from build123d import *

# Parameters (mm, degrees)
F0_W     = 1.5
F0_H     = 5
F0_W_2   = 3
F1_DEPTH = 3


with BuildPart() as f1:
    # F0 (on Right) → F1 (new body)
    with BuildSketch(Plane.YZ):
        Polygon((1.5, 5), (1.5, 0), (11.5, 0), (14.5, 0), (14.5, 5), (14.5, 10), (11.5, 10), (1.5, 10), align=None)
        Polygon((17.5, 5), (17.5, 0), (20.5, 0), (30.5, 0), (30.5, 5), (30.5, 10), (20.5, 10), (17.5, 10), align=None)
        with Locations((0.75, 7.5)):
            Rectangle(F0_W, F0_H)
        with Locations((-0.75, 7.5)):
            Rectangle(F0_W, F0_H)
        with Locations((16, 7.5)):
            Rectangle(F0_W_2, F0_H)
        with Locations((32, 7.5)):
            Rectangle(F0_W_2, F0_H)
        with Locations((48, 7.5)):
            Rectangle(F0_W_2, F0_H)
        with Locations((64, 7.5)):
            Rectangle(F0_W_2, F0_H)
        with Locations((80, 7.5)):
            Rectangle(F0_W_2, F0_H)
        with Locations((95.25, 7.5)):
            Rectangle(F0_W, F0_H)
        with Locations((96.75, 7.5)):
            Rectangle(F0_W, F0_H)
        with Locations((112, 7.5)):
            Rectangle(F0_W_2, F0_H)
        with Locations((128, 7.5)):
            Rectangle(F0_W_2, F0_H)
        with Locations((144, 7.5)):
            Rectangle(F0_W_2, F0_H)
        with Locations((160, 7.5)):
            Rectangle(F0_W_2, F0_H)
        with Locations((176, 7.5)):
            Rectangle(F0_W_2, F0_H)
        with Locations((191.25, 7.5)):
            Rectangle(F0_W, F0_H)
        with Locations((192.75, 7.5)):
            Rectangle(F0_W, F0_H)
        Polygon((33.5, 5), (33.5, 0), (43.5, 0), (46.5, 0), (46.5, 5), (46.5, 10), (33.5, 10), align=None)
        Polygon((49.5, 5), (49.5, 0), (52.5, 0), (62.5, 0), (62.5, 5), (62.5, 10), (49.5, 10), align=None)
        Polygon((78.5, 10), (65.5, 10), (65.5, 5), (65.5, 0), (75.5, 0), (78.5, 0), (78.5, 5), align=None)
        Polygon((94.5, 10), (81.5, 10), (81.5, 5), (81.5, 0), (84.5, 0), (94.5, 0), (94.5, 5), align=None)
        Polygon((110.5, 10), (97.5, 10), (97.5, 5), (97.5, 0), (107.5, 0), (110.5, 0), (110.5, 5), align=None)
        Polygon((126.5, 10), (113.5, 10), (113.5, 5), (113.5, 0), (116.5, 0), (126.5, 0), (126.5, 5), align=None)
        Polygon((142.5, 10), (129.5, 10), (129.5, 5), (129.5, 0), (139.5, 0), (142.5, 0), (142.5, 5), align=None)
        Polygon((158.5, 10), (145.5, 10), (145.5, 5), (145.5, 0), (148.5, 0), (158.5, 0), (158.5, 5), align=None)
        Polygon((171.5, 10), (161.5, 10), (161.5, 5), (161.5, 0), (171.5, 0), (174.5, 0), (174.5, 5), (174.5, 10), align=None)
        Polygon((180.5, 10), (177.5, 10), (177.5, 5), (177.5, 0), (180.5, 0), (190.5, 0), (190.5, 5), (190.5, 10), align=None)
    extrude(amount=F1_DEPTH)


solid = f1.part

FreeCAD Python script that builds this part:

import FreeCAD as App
import Part
import Sketcher


def add_polygon(sketch, points):
    """Adds a closed chain of lines whose ends are joined by coincident constraints."""
    first, n = sketch.GeometryCount, len(points)
    for a, b in zip(points, points[1:] + points[:1]):
        sketch.addGeometry(Part.LineSegment(App.Vector(*a, 0), App.Vector(*b, 0)), False)
    for i in range(n):
        sketch.addConstraint(Sketcher.Constraint("Coincident", first + i, 2, first + (i + 1) % n, 1))

doc = App.newDocument("Part")
body = doc.addObject("PartDesign::Body", "Body")

sketch1 = body.newObject("Sketcher::SketchObject", "Sketch")
sketch1.AttachmentSupport = (doc.getObject("YZ_Plane"), [""])
sketch1.MapMode = "FlatFace"
add_polygon(sketch1, [(1.5, 0), (14.5, 0), (14.5, 5), (17.5, 5), (17.5, 0), (30.5, 0), (30.5, 5), (33.5, 5), (33.5, 0), (46.5, 0), (46.5, 5), (49.5, 5), (49.5, 0), (62.5, 0), (62.5, 5), (65.5, 5), (65.5, 0), (78.5, 0), (78.5, 5), (81.5, 5), (81.5, 0), (94.5, 0), (94.5, 5), (97.5, 5), (97.5, 0), (110.5, 0), (110.5, 5), (113.5, 5), (113.5, 0), (126.5, 0), (126.5, 5), (129.5, 5), (129.5, 0), (142.5, 0), (142.5, 5), (145.5, 5), (145.5, 0), (158.5, 0), (158.5, 5), (161.5, 5), (161.5, 0), (174.5, 0), (174.5, 5), (177.5, 5), (177.5, 0), (190.5, 0), (190.5, 5), (193.5, 5), (193.5, 10), (-1.5, 10), (-1.5, 5), (1.5, 5)])
sketch1.addConstraint(Sketcher.Constraint("Horizontal", 0))
sketch1.addConstraint(Sketcher.Constraint("Vertical", 1))
sketch1.addConstraint(Sketcher.Constraint("Horizontal", 2))
sketch1.addConstraint(Sketcher.Constraint("Vertical", 3))
sketch1.addConstraint(Sketcher.Constraint("Horizontal", 4))
sketch1.addConstraint(Sketcher.Constraint("Vertical", 5))
sketch1.addConstraint(Sketcher.Constraint("Horizontal", 6))
sketch1.addConstraint(Sketcher.Constraint("Vertical", 7))
sketch1.addConstraint(Sketcher.Constraint("Horizontal", 8))
sketch1.addConstraint(Sketcher.Constraint("Vertical", 9))
sketch1.addConstraint(Sketcher.Constraint("Horizontal", 10))
sketch1.addConstraint(Sketcher.Constraint("Vertical", 11))
sketch1.addConstraint(Sketcher.Constraint("Horizontal", 12))
sketch1.addConstraint(Sketcher.Constraint("Vertical", 13))
sketch1.addConstraint(Sketcher.Constraint("Horizontal", 14))
sketch1.addConstraint(Sketcher.Constraint("Vertical", 15))
sketch1.addConstraint(Sketcher.Constraint("Horizontal", 16))
sketch1.addConstraint(Sketcher.Constraint("Vertical", 17))
sketch1.addConstraint(Sketcher.Constraint("Horizontal", 18))
sketch1.addConstraint(Sketcher.Constraint("Vertical", 19))
sketch1.addConstraint(Sketcher.Constraint("Horizontal", 20))
sketch1.addConstraint(Sketcher.Constraint("Vertical", 21))
sketch1.addConstraint(Sketcher.Constraint("Horizontal", 22))
sketch1.addConstraint(Sketcher.Constraint("Vertical", 23))
sketch1.addConstraint(Sketcher.Constraint("Horizontal", 24))
sketch1.addConstraint(Sketcher.Constraint("Vertical", 25))
sketch1.addConstraint(Sketcher.Constraint("Horizontal", 26))
sketch1.addConstraint(Sketcher.Constraint("Vertical", 27))
sketch1.addConstraint(Sketcher.Constraint("Horizontal", 28))
sketch1.addConstraint(Sketcher.Constraint("Vertical", 29))
sketch1.addConstraint(Sketcher.Constraint("Horizontal", 30))
sketch1.addConstraint(Sketcher.Constraint("Vertical", 31))
sketch1.addConstraint(Sketcher.Constraint("Horizontal", 32))
sketch1.addConstraint(Sketcher.Constraint("Vertical", 33))
sketch1.addConstraint(Sketcher.Constraint("Horizontal", 34))
sketch1.addConstraint(Sketcher.Constraint("Vertical", 35))
sketch1.addConstraint(Sketcher.Constraint("Horizontal", 36))
sketch1.addConstraint(Sketcher.Constraint("Vertical", 37))
sketch1.addConstraint(Sketcher.Constraint("Horizontal", 38))
sketch1.addConstraint(Sketcher.Constraint("Vertical", 39))
sketch1.addConstraint(Sketcher.Constraint("Horizontal", 40))
sketch1.addConstraint(Sketcher.Constraint("Vertical", 41))
sketch1.addConstraint(Sketcher.Constraint("Horizontal", 42))
sketch1.addConstraint(Sketcher.Constraint("Vertical", 43))
sketch1.addConstraint(Sketcher.Constraint("Horizontal", 44))
sketch1.addConstraint(Sketcher.Constraint("Vertical", 45))
sketch1.addConstraint(Sketcher.Constraint("Horizontal", 46))
sketch1.addConstraint(Sketcher.Constraint("Vertical", 47))
sketch1.addConstraint(Sketcher.Constraint("Horizontal", 48))
sketch1.addConstraint(Sketcher.Constraint("Vertical", 49))
sketch1.addConstraint(Sketcher.Constraint("Horizontal", 50))
sketch1.addConstraint(Sketcher.Constraint("Vertical", 51))
sketch1.addConstraint(Sketcher.Constraint("PointOnObject", 0, 2, -1))
sketch1.addConstraint(Sketcher.Constraint("PointOnObject", 3, 2, -1))
sketch1.addConstraint(Sketcher.Constraint("PointOnObject", 7, 2, -1))
sketch1.addConstraint(Sketcher.Constraint("PointOnObject", 11, 2, -1))
sketch1.addConstraint(Sketcher.Constraint("PointOnObject", 15, 2, -1))
sketch1.addConstraint(Sketcher.Constraint("PointOnObject", 19, 2, -1))
sketch1.addConstraint(Sketcher.Constraint("PointOnObject", 23, 2, -1))
sketch1.addConstraint(Sketcher.Constraint("PointOnObject", 27, 2, -1))
sketch1.addConstraint(Sketcher.Constraint("PointOnObject", 31, 2, -1))
sketch1.addConstraint(Sketcher.Constraint("PointOnObject", 35, 2, -1))
sketch1.addConstraint(Sketcher.Constraint("PointOnObject", 39, 2, -1))
sketch1.addConstraint(Sketcher.Constraint("PointOnObject", 43, 2, -1))
sketch1.addConstraint(Sketcher.Constraint("Horizontal", 2, 2, 5, 2))
sketch1.addConstraint(Sketcher.Constraint("Horizontal", 6, 2, 9, 2))
sketch1.addConstraint(Sketcher.Constraint("Horizontal", 10, 2, 13, 2))
sketch1.addConstraint(Sketcher.Constraint("Horizontal", 14, 2, 17, 2))
sketch1.addConstraint(Sketcher.Constraint("Horizontal", 18, 2, 21, 2))
sketch1.addConstraint(Sketcher.Constraint("Horizontal", 22, 2, 25, 2))
sketch1.addConstraint(Sketcher.Constraint("Horizontal", 26, 2, 29, 2))
sketch1.addConstraint(Sketcher.Constraint("Horizontal", 30, 2, 33, 2))
sketch1.addConstraint(Sketcher.Constraint("Horizontal", 34, 2, 37, 2))
sketch1.addConstraint(Sketcher.Constraint("Horizontal", 38, 2, 41, 2))
sketch1.addConstraint(Sketcher.Constraint("Horizontal", 42, 2, 45, 2))
sketch1.addConstraint(Sketcher.Constraint("Horizontal", 46, 2, 49, 2))
sketch1.addConstraint(Sketcher.Constraint("Equal", 0, 4))
sketch1.addConstraint(Sketcher.Constraint("Equal", 2, 6))
sketch1.addConstraint(Sketcher.Constraint("Equal", 4, 8))
sketch1.addConstraint(Sketcher.Constraint("Equal", 6, 10))
sketch1.addConstraint(Sketcher.Constraint("Equal", 8, 12))
sketch1.addConstraint(Sketcher.Constraint("Equal", 10, 14))
sketch1.addConstraint(Sketcher.Constraint("Equal", 12, 16))
sketch1.addConstraint(Sketcher.Constraint("Equal", 14, 18))
sketch1.addConstraint(Sketcher.Constraint("Equal", 16, 20))
sketch1.addConstraint(Sketcher.Constraint("Equal", 18, 22))
sketch1.addConstraint(Sketcher.Constraint("Equal", 20, 24))
sketch1.addConstraint(Sketcher.Constraint("Equal", 22, 26))
sketch1.addConstraint(Sketcher.Constraint("Equal", 24, 28))
sketch1.addConstraint(Sketcher.Constraint("Equal", 26, 30))
sketch1.addConstraint(Sketcher.Constraint("Equal", 28, 32))
sketch1.addConstraint(Sketcher.Constraint("Equal", 30, 34))
sketch1.addConstraint(Sketcher.Constraint("Equal", 32, 36))
sketch1.addConstraint(Sketcher.Constraint("Equal", 34, 38))
sketch1.addConstraint(Sketcher.Constraint("Equal", 36, 40))
sketch1.addConstraint(Sketcher.Constraint("Equal", 38, 42))
sketch1.addConstraint(Sketcher.Constraint("Equal", 40, 44))
sketch1.addConstraint(Sketcher.Constraint("Equal", 42, 46))
sketch1.addConstraint(Sketcher.Constraint("Equal", 46, 50))
sketch1.addConstraint(Sketcher.Constraint("Equal", 45, 47))
sketch1.addConstraint(Sketcher.Constraint("DistanceX", 0, 1, 0, 2, 13.0))
sketch1.addConstraint(Sketcher.Constraint("DistanceX", 2, 1, 2, 2, 3.0))
sketch1.addConstraint(Sketcher.Constraint("DistanceY", 1, 1, 1, 2, 5.0))
sketch1.addConstraint(Sketcher.Constraint("DistanceX", -1, 1, 0, 2, 14.5))
pad1 = body.newObject("PartDesign::Pad", "Pad")
pad1.Profile = sketch1
pad1.Length = 3

doc.recompute()
